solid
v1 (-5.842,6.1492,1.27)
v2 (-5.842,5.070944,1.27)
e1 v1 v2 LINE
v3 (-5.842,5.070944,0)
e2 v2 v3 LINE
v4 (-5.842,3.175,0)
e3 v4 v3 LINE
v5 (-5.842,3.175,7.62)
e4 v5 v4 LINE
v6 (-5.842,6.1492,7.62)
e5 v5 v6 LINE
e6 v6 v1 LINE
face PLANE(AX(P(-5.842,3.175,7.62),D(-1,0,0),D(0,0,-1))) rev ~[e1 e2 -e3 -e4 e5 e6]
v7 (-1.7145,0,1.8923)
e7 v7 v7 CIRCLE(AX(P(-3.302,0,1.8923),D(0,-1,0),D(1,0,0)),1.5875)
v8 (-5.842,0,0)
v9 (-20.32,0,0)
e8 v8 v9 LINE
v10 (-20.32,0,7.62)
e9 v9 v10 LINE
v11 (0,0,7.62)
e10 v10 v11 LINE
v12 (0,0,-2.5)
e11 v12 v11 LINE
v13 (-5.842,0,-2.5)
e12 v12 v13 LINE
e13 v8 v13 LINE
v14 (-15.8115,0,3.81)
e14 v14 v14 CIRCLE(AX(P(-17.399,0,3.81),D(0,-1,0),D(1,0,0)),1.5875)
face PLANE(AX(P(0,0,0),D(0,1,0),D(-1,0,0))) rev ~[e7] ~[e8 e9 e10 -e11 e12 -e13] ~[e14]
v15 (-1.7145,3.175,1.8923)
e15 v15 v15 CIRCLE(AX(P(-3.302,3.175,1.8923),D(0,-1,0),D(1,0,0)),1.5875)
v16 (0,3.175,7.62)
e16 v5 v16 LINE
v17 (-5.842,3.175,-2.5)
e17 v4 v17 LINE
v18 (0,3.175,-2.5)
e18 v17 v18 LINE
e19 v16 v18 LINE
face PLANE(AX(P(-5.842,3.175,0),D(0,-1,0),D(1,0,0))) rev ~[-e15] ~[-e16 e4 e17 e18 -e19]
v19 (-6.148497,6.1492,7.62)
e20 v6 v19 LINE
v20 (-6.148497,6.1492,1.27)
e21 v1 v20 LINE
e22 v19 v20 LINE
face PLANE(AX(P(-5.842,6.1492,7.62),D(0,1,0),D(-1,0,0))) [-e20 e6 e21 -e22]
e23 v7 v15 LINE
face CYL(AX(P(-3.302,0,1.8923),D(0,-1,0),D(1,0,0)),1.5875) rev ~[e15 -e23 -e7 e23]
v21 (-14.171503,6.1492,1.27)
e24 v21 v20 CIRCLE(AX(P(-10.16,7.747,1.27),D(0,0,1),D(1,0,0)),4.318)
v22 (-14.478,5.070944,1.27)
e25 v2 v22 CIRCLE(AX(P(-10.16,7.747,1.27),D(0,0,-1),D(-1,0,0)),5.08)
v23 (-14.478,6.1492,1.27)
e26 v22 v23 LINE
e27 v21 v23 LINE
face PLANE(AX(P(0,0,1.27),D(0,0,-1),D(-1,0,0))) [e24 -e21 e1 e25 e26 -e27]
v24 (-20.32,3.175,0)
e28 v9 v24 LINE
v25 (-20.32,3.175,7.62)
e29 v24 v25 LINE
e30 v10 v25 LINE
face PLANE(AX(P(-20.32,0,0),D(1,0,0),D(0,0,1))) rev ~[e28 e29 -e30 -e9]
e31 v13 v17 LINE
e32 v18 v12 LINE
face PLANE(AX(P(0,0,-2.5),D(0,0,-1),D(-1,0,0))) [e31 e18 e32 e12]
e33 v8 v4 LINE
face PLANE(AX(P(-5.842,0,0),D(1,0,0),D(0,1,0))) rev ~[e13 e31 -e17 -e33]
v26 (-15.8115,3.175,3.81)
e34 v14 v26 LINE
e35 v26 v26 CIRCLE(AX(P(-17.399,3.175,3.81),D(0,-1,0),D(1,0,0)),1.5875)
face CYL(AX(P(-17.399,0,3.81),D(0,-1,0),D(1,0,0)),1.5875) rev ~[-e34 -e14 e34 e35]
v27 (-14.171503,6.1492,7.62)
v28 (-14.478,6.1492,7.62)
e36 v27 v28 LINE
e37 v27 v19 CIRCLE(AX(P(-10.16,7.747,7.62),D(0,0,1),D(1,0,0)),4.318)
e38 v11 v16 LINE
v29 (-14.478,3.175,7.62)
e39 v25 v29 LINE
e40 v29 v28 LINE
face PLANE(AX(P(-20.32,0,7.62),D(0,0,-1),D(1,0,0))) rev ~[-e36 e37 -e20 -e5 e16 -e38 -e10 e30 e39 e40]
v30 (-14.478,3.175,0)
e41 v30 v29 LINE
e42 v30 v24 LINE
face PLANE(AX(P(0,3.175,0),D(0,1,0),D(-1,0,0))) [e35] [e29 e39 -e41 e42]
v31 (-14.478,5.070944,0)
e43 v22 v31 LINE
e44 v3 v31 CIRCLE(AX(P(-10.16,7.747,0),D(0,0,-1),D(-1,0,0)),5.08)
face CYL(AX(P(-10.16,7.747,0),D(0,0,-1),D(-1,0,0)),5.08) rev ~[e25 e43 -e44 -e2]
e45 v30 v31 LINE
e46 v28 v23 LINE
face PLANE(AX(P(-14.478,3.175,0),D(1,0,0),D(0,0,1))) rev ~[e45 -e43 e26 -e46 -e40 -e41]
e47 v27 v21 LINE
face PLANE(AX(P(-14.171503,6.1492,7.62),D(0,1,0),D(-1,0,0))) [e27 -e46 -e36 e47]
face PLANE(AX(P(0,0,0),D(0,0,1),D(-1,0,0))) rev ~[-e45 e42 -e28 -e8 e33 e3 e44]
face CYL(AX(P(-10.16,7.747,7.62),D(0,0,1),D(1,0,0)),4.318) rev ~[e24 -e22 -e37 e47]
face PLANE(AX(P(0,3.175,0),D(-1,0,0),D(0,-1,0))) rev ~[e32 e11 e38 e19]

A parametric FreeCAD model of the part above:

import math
import FreeCAD as App
import Part
import Sketcher
from FreeCAD import Vector
Q = App.Units.Quantity

doc = App.newDocument("Part")
body = doc.addObject("PartDesign::Body", "Body")

sketch1 = doc.addObject("Sketcher::SketchObject", "Sketch")
body.addObject(sketch1)
sketch1.AttachmentSupport = (doc.XZ_Plane, [""])
sketch1.MapMode = "FlatFace"
sketch1.addGeometry([
    Part.LineSegment(Vector(0, 8, 0), Vector(0, 0, 0)),
    Part.LineSegment(Vector(0, 0, 0), Vector(-20, 0, 0)),
    Part.LineSegment(Vector(-20, 0, 0), Vector(-20, 8, 0)),
    Part.LineSegment(Vector(-20, 8, 0), Vector(0, 8, 0)),
], False)
sketch1.addConstraint([
    Sketcher.Constraint("Coincident", 0, 2, 1, 1),
    Sketcher.Constraint("Coincident", 1, 2, 2, 1),
    Sketcher.Constraint("Coincident", 2, 2, 3, 1),
    Sketcher.Constraint("Coincident", 3, 2, 0, 1),
    Sketcher.Constraint("Vertical", 0),
    Sketcher.Constraint("Horizontal", 1),
    Sketcher.Constraint("Vertical", 2),
    Sketcher.Constraint("Horizontal", 3),
    Sketcher.Constraint("Coincident", 0, 2, -1, 1),
    Sketcher.Constraint("DistanceX", 1, 2, 1, 1, Q("0.8 in")),
    Sketcher.Constraint("DistanceY", 0, 2, 0, 1, Q("0.3 in")),
])
pad1 = doc.addObject("PartDesign::Pad", "Pad")
body.addObject(pad1)
pad1.Profile = sketch1
pad1.Length = Q("0.125 in")
pad1.Reversed = True

sketch2 = doc.addObject("Sketcher::SketchObject", "Sketch001")
body.addObject(sketch2)
sketch2.AttachmentSupport = (doc.XZ_Plane, [""])
sketch2.MapMode = "FlatFace"
sketch2.AttachmentOffset = App.Placement(Vector(0, 0, -0.125 * 25.4), App.Rotation())
sketch2.addGeometry([
    Part.LineSegment(Vector(-6, 8, 0), Vector(-6, 0, 0)),
    Part.LineSegment(Vector(-6, 0, 0), Vector(-14, 0, 0)),
    Part.LineSegment(Vector(-14, 0, 0), Vector(-14, 8, 0)),
    Part.LineSegment(Vector(-14, 8, 0), Vector(-6, 8, 0)),
], False)
sketch2.addConstraint([
    Sketcher.Constraint("Coincident", 0, 2, 1, 1),
    Sketcher.Constraint("Coincident", 1, 2, 2, 1),
    Sketcher.Constraint("Coincident", 2, 2, 3, 1),
    Sketcher.Constraint("Coincident", 3, 2, 0, 1),
    Sketcher.Constraint("Vertical", 0),
    Sketcher.Constraint("Horizontal", 1),
    Sketcher.Constraint("Vertical", 2),
    Sketcher.Constraint("Horizontal", 3),
    Sketcher.Constraint("PointOnObject", 0, 2, -1),
    Sketcher.Constraint("DistanceX", 1, 2, 1, 1, Q("0.34 in")),
    Sketcher.Constraint("DistanceX", 0, 2, -1, 1, Q("0.23 in")),
    Sketcher.Constraint("DistanceY", 0, 2, 0, 1, Q("0.3 in")),
])
pad2 = doc.addObject("PartDesign::Pad", "Pad001")
body.addObject(pad2)
pad2.Profile = sketch2
pad2.Length = Q("0.28 in")
pad2.Reversed = True

sketch3 = doc.addObject("Sketcher::SketchObject", "Sketch002")
body.addObject(sketch3)
sketch3.AttachmentSupport = (doc.XY_Plane, [""])
sketch3.MapMode = "FlatFace"
sketch3.AttachmentOffset = App.Placement(Vector(0, 0, 0.3 * 25.4), App.Rotation())
sketch3.addGeometry([
    Part.LineSegment(Vector(-6.15, 6.15, 0), Vector(-5.84, 6.15, 0)),
    Part.LineSegment(Vector(-5.84, 6.15, 0), Vector(-5.84, 10.29, 0)),
    Part.LineSegment(Vector(-5.84, 10.29, 0), Vector(-6.67, 10.29, 0)),
    Part.ArcOfCircle(Part.Circle(Vector(-10.16, 7.75, 0), Vector(0, 0, 1), 4.32), math.radians(36), math.radians(144)),
    Part.LineSegment(Vector(-13.65, 10.29, 0), Vector(-14.48, 10.29, 0)),
    Part.LineSegment(Vector(-14.48, 10.29, 0), Vector(-14.48, 6.15, 0)),
    Part.LineSegment(Vector(-14.48, 6.15, 0), Vector(-14.17, 6.15, 0)),
    Part.ArcOfCircle(Part.Circle(Vector(-10.16, 7.75, 0), Vector(0, 0, 1), 4.32), math.radians(-158), math.radians(-22)),
], False)
sketch3.addConstraint([
    Sketcher.Constraint("Coincident", 0, 2, 1, 1),
    Sketcher.Constraint("Coincident", 1, 2, 2, 1),
    Sketcher.Constraint("Coincident", 2, 2, 3, 1),
    Sketcher.Constraint("Coincident", 3, 2, 4, 1),
    Sketcher.Constraint("Coincident", 4, 2, 5, 1),
    Sketcher.Constraint("Coincident", 5, 2, 6, 1),
    Sketcher.Constraint("Coincident", 6, 2, 7, 1),
    Sketcher.Constraint("Coincident", 7, 2, 0, 1),
    Sketcher.Constraint("Horizontal", 0),
    Sketcher.Constraint("Vertical", 1),
    Sketcher.Constraint("Horizontal", 2),
    Sketcher.Constraint("Horizontal", 4),
    Sketcher.Constraint("Vertical", 5),
    Sketcher.Constraint("Horizontal", 6),
    Sketcher.Constraint("Coincident", 7, 3, 3, 3),
    Sketcher.Constraint("Equal", 3, 7),
    Sketcher.Constraint("Horizontal", 2, 2, 3, 2),
    Sketcher.Constraint("Horizontal", 0, 2, 5, 2),
    Sketcher.Constraint("Equal", 2, 4),
    Sketcher.Constraint("Radius", 3, Q("0.17 in")),
    Sketcher.Constraint("DistanceY", 3, 3, 1, 2, Q("0.1 in")),
    Sketcher.Constraint("DistanceX", 4, 2, 1, 2, Q("0.34 in")),
    Sketcher.Constraint("DistanceX", 3, 3, -1, 1, Q("0.4 in")),
    Sketcher.Constraint("DistanceY", 1, 1, 1, 2, Q("0.1629 in")),
    Sketcher.Constraint("DistanceY", -1, 1, 3, 3, Q("0.305 in")),
])
pocket1 = doc.addObject("PartDesign::Pocket", "Pocket")
body.addObject(pocket1)
pocket1.Profile = sketch3
pocket1.Length = Q("0.3 in")

sketch4 = doc.addObject("Sketcher::SketchObject", "Sketch003")
body.addObject(sketch4)
sketch4.AttachmentSupport = (doc.XY_Plane, [""])
sketch4.MapMode = "FlatFace"
sketch4.addGeometry(Part.Circle(Vector(-10, 8, 0), Vector(0, 0, 1), 5), False)
sketch4.addConstraint([
    Sketcher.Constraint("Diameter", 0, Q("0.4 in")),
    Sketcher.Constraint("DistanceX", 0, 3, -1, 1, Q("0.4 in")),
    Sketcher.Constraint("DistanceY", -1, 1, 0, 3, Q("0.305 in")),
])
pocket2 = doc.addObject("PartDesign::Pocket", "Pocket001")
body.addObject(pocket2)
pocket2.Profile = sketch4
pocket2.Length = Q("0.05 in")
pocket2.Reversed = True

sketch5 = doc.addObject("Sketcher::SketchObject", "Sketch004")
body.addObject(sketch5)
sketch5.AttachmentSupport = (doc.XZ_Plane, [""])
sketch5.MapMode = "FlatFace"
sketch5.addGeometry([
    Part.Circle(Vector(-17.4, 3.8, 0), Vector(0, 0, 1), 1.6),
    Part.Circle(Vector(-3.3, 1.9, 0), Vector(0, 0, 1), 1.6),
], False)
sketch5.addConstraint([
    Sketcher.Constraint("Equal", 0, 1),
    Sketcher.Constraint("Diameter", 0, Q("0.125 in")),
    Sketcher.Constraint("DistanceY", -1, 1, 0, 3, Q("0.15 in")),
    Sketcher.Constraint("DistanceX", 0, 3, 1, 3, Q("0.555 in")),
    Sketcher.Constraint("DistanceY", 1, 3, 0, 3, Q("0.0755 in")),
    Sketcher.Constraint("DistanceX", 1, 3, -1, 1, Q("0.13 in")),
])
pocket3 = doc.addObject("PartDesign::Pocket", "Pocket002")
body.addObject(pocket3)
pocket3.Profile = sketch5
pocket3.Length = Q("0.125 in")

sketch6 = doc.addObject("Sketcher::SketchObject", "Sketch005")
body.addObject(sketch6)
sketch6.AttachmentSupport = (doc.XY_Plane, [""])
sketch6.MapMode = "FlatFace"
sketch6.addGeometry([
    Part.LineSegment(Vector(-5.8, 0, 0), Vector(-5.8, 3.2, 0)),
    Part.LineSegment(Vector(-5.8, 3.2, 0), Vector(0, 3.2, 0)),
    Part.LineSegment(Vector(0, 3.2, 0), Vector(0, 0, 0)),
    Part.LineSegment(Vector(0, 0, 0), Vector(-5.8, 0, 0)),
], False)
sketch6.addConstraint([
    Sketcher.Constraint("Coincident", 0, 2, 1, 1),
    Sketcher.Constraint("Coincident", 1, 2, 2, 1),
    Sketcher.Constraint("Coincident", 2, 2, 3, 1),
    Sketcher.Constraint("Coincident", 3, 2, 0, 1),
    Sketcher.Constraint("Vertical", 0),
    Sketcher.Constraint("Horizontal", 1),
    Sketcher.Constraint("Vertical", 2),
    Sketcher.Constraint("Horizontal", 3),
    Sketcher.Constraint("Coincident", 2, 2, -1, 1),
    Sketcher.Constraint("DistanceX", 1, 1, 1, 2, Q("0.23 in")),
    Sketcher.Constraint("DistanceY", 0, 1, 0, 2, Q("0.125 in")),
])
pad3 = doc.addObject("PartDesign::Pad", "Pad002")
body.addObject(pad3)
pad3.Profile = sketch6
pad3.Length = 2.5
pad3.Reversed = True

doc.recompute()
